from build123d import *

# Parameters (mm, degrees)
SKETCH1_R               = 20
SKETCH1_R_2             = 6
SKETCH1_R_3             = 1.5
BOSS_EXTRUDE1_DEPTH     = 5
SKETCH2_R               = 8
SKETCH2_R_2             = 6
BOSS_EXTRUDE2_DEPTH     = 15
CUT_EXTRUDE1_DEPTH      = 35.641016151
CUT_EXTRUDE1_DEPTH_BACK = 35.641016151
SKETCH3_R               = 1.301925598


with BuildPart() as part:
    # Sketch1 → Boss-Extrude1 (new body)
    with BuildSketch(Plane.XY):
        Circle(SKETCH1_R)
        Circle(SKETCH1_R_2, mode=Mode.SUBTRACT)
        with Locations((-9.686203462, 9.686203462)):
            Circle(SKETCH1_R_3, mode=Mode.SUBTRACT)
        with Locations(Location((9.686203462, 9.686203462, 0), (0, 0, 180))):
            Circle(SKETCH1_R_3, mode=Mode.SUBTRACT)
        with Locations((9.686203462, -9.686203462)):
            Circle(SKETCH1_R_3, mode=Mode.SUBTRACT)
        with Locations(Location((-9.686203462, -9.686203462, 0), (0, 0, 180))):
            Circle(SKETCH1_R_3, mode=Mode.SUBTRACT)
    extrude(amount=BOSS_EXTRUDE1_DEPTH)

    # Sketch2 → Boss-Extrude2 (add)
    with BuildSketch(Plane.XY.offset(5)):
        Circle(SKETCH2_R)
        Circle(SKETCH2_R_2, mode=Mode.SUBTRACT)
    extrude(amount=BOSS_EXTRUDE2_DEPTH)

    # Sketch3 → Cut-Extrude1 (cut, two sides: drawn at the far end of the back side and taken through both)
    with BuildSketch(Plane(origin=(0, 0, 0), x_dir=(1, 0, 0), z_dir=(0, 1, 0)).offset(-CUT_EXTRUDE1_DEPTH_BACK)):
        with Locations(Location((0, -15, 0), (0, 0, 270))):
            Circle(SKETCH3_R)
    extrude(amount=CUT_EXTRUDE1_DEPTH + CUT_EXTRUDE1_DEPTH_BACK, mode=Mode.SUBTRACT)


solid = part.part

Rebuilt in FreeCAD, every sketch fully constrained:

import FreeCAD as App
import Part
import Sketcher
from FreeCAD import Vector
Q = App.Units.Quantity

doc = App.newDocument("Part")
body = doc.addObject("PartDesign::Body", "Body")

sketch1 = body.newObject("Sketcher::SketchObject", "Sketch")
sketch1.AttachmentSupport = (doc.getObject("XY_Plane"), [""])
sketch1.MapMode = "FlatFace"
sketch1.addGeometry(Part.Circle(Vector(0, 0, 0), Vector(0, 0, 1), 20), False)
sketch1.addGeometry(Part.Circle(Vector(-9.686203, -9.686203, 0), Vector(0, 0, 1), 1.5), False)
sketch1.addGeometry(Part.Circle(Vector(9.686203, -9.686203, 0), Vector(0, 0, 1), 1.5), False)
sketch1.addGeometry(Part.Circle(Vector(0, 0, 0), Vector(0, 0, 1), 6), False)
sketch1.addGeometry(Part.Circle(Vector(-9.686203, 9.686203, 0), Vector(0, 0, 1), 1.5), False)
sketch1.addGeometry(Part.Circle(Vector(9.686203, 9.686203, 0), Vector(0, 0, 1), 1.5), False)
sketch1.addConstraint(Sketcher.Constraint("Coincident", 0, 3, -1, 1))
sketch1.addConstraint(Sketcher.Constraint("Coincident", 3, 3, -1, 1))
sketch1.addConstraint(Sketcher.Constraint("Equal", 1, 2))
sketch1.addConstraint(Sketcher.Constraint("Equal", 2, 4))
sketch1.addConstraint(Sketcher.Constraint("Equal", 4, 5))
sketch1.addConstraint(Sketcher.Constraint("Symmetric", 2, 3, 4, 3, -1, 1))
sketch1.addConstraint(Sketcher.Constraint("Symmetric", 1, 3, 5, 3, -1, 1))
sketch1.addConstraint(Sketcher.Constraint("Symmetric", 1, 3, 2, 3, -2))
sketch1.addConstraint(Sketcher.Constraint("Diameter", 0, Q("40 mm")))
sketch1.addConstraint(Sketcher.Constraint("Diameter", 1, Q("3 mm")))
sketch1.addConstraint(Sketcher.Constraint("Diameter", 3, Q("12 mm")))
sketch1.addConstraint(Sketcher.Constraint("DistanceX", 1, 3, -1, 1, Q("9.686203 mm")))
sketch1.addConstraint(Sketcher.Constraint("DistanceY", 1, 3, -1, 1, Q("9.686203 mm")))
pad1 = body.newObject("PartDesign::Pad", "Pad")
pad1.Profile = sketch1
pad1.Length = 5

sketch2 = body.newObject("Sketcher::SketchObject", "Sketch001")
sketch2.AttachmentSupport = (doc.getObject("XY_Plane"), [""])
sketch2.MapMode = "FlatFace"
sketch2.AttachmentOffset = App.Placement(Vector(0, 0, 5), App.Rotation())
sketch2.addGeometry(Part.Circle(Vector(0, 0, 0), Vector(0, 0, 1), 8), False)
sketch2.addGeometry(Part.Circle(Vector(0, 0, 0), Vector(0, 0, 1), 6), False)
sketch2.addConstraint(Sketcher.Constraint("Coincident", 0, 3, -1, 1))
sketch2.addConstraint(Sketcher.Constraint("Coincident", 1, 3, -1, 1))
sketch2.addConstraint(Sketcher.Constraint("Diameter", 0, Q("16 mm")))
sketch2.addConstraint(Sketcher.Constraint("Diameter", 1, Q("12 mm")))
pad2 = body.newObject("PartDesign::Pad", "Pad001")
pad2.Profile = sketch2
pad2.Length = 15

sketch3 = body.newObject("Sketcher::SketchObject", "Sketch002")
sketch3.AttachmentSupport = (doc.getObject("XZ_Plane"), [""])
sketch3.MapMode = "FlatFace"
sketch3.addGeometry(Part.Circle(Vector(0, 15, 0), Vector(0, 0, 1), 1.301926), False)
sketch3.addConstraint(Sketcher.Constraint("PointOnObject", 0, 3, -2))
sketch3.addConstraint(Sketcher.Constraint("DistanceY", -1, 1, 0, 3, Q("15 mm")))
sketch3.addConstraint(Sketcher.Constraint("Diameter", 0, Q("2.603851 mm")))
pocket1 = body.newObject("PartDesign::Pocket", "Pocket")
pocket1.Profile = sketch3
pocket1.Type = "ThroughAll"
pocket1.Midplane = True

doc.recompute()
